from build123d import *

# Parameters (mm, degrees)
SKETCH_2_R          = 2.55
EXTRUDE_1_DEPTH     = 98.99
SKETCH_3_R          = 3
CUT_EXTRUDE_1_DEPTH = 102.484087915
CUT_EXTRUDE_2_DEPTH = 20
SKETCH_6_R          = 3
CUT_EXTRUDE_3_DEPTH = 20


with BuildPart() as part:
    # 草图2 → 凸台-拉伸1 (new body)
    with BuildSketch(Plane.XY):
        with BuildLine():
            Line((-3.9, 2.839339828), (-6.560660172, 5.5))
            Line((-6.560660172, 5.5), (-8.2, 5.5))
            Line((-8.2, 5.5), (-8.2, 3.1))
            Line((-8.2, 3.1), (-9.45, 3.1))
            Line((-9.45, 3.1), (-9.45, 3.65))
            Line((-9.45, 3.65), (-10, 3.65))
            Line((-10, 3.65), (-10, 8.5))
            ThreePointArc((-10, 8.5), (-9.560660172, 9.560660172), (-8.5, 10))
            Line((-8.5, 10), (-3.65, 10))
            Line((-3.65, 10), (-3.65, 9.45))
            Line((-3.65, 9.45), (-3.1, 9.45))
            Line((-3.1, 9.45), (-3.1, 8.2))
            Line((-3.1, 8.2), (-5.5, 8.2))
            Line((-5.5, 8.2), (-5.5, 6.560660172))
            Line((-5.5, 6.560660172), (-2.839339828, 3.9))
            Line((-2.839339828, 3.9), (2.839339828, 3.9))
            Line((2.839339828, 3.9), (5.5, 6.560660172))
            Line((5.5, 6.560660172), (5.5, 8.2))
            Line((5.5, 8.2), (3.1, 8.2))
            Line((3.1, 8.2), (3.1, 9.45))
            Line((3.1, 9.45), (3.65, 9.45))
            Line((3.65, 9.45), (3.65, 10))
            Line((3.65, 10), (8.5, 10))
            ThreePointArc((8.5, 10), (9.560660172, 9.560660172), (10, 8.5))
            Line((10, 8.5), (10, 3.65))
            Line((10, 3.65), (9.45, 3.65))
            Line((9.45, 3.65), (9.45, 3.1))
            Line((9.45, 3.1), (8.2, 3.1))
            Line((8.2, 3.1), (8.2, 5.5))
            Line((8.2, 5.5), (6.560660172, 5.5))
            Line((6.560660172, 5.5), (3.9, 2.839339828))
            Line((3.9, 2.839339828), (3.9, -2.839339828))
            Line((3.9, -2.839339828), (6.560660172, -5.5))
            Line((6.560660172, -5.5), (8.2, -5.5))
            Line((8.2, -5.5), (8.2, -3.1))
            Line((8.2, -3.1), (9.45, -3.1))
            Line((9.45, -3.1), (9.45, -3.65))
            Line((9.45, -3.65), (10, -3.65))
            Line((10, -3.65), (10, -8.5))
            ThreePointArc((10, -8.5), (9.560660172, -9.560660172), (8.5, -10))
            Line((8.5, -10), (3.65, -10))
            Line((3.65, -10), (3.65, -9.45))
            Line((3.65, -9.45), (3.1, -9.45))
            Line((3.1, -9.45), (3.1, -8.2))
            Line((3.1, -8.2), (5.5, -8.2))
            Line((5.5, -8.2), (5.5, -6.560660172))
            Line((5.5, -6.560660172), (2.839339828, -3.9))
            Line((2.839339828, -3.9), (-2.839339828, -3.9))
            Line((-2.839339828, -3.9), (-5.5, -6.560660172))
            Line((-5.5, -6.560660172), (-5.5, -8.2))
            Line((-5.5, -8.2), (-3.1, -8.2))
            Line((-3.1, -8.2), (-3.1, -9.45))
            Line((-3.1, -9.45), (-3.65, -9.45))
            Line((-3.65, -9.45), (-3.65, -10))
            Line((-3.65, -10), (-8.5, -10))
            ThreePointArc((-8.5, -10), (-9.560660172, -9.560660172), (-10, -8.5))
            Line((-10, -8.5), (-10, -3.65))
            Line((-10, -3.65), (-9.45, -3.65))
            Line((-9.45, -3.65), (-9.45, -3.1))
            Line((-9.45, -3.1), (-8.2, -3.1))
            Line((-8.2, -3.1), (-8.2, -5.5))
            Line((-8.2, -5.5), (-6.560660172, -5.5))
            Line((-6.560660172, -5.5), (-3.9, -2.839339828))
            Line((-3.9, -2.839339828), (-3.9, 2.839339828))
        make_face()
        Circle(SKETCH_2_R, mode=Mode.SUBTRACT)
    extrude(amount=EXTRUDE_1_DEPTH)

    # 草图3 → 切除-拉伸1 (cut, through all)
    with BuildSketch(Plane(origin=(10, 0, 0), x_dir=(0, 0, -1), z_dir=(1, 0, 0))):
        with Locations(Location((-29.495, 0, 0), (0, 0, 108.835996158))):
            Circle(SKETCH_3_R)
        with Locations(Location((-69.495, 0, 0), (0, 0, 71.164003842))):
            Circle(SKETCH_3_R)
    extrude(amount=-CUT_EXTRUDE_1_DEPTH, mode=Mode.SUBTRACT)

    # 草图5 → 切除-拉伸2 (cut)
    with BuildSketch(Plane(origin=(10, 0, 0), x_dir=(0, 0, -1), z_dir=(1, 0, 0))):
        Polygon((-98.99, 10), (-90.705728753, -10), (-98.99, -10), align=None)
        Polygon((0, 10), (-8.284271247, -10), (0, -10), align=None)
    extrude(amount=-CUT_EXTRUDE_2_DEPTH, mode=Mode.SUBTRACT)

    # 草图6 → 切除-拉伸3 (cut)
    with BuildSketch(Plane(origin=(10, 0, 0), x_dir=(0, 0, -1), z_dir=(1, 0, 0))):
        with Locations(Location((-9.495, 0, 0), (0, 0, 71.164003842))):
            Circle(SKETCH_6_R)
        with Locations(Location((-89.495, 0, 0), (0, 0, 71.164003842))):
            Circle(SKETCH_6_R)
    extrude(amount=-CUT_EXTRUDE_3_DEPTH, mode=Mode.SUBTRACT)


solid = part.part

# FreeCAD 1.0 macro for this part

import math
import FreeCAD as App
import Part
import Sketcher
from FreeCAD import Vector
Q = App.Units.Quantity

doc = App.newDocument("Part")
params = doc.addObject("Spreadsheet::Sheet", "Params")
for row, (alias, value) in enumerate([
    ("sketch1_diameter", "5.1 mm"),
    ("sketch1_radius", "1.5 mm"),
    ("sketch1_width", "2.4 mm"),
    ("sketch1_width2", "1.25 mm"),
    ("sketch1_width3", "0.55 mm"),
    ("pad1_length", "98.99 mm"),
    ("sketch2_diameter", "6 mm"),
    ("sketch3_width", "20 mm"),
    ("pocket2_length", "20 mm"),
    ("sketch4_diameter", "6 mm"),
    ("pocket3_length", "20 mm"),
], start=1):
    params.set(f"A{row}", alias)
    params.set(f"B{row}", "=" + value)
    params.setAlias(f"B{row}", alias)

body = doc.addObject("PartDesign::Body", "Body")

sketch1 = body.newObject("Sketcher::SketchObject", "Sketch")
sketch1.AttachmentSupport = (doc.getObject("XY_Plane"), [""])
sketch1.MapMode = "FlatFace"
sketch1.addGeometry(Part.LineSegment(Vector(-6.6, 5.5, 0), Vector(-3.9, 2.8, 0)), False)
sketch1.addGeometry(Part.LineSegment(Vector(-3.9, 2.8, 0), Vector(-3.9, -2.8, 0)), False)
sketch1.addGeometry(Part.LineSegment(Vector(-3.9, -2.8, 0), Vector(-6.6, -5.5, 0)), False)
sketch1.addGeometry(Part.LineSegment(Vector(-6.6, -5.5, 0), Vector(-8.2, -5.5, 0)), False)
sketch1.addGeometry(Part.LineSegment(Vector(-8.2, -5.5, 0), Vector(-8.2, -3.1, 0)), False)
sketch1.addGeometry(Part.LineSegment(Vector(-8.2, -3.1, 0), Vector(-9.4, -3.1, 0)), False)
sketch1.addGeometry(Part.LineSegment(Vector(-9.4, -3.1, 0), Vector(-9.4, -3.6, 0)), False)
sketch1.addGeometry(Part.LineSegment(Vector(-9.4, -3.6, 0), Vector(-10, -3.6, 0)), False)
sketch1.addGeometry(Part.LineSegment(Vector(-10, -3.6, 0), Vector(-10, -8.5, 0)), False)
sketch1.addGeometry(Part.ArcOfCircle(Part.Circle(Vector(-8.5, -8.5, 0), Vector(0, 0, 1), 1.5), math.radians(180), math.radians(270)), False)
sketch1.addGeometry(Part.LineSegment(Vector(-8.5, -10, 0), Vector(-3.6, -10, 0)), False)
sketch1.addGeometry(Part.LineSegment(Vector(-3.6, -10, 0), Vector(-3.6, -9.4, 0)), False)
sketch1.addGeometry(Part.LineSegment(Vector(-3.6, -9.4, 0), Vector(-3.1, -9.4, 0)), False)
sketch1.addGeometry(Part.LineSegment(Vector(-3.1, -9.4, 0), Vector(-3.1, -8.2, 0)), False)
sketch1.addGeometry(Part.LineSegment(Vector(-3.1, -8.2, 0), Vector(-5.5, -8.2, 0)), False)
sketch1.addGeometry(Part.LineSegment(Vector(-5.5, -8.2, 0), Vector(-5.5, -6.6, 0)), False)
sketch1.addGeometry(Part.LineSegment(Vector(-5.5, -6.6, 0), Vector(-2.8, -3.9, 0)), False)
sketch1.addGeometry(Part.LineSegment(Vector(-2.8, -3.9, 0), Vector(2.8, -3.9, 0)), False)
sketch1.addGeometry(Part.LineSegment(Vector(2.8, -3.9, 0), Vector(5.5, -6.6, 0)), False)
sketch1.addGeometry(Part.LineSegment(Vector(5.5, -6.6, 0), Vector(5.5, -8.2, 0)), False)
sketch1.addGeometry(Part.LineSegment(Vector(5.5, -8.2, 0), Vector(3.1, -8.2, 0)), False)
sketch1.addGeometry(Part.LineSegment(Vector(3.1, -8.2, 0), Vector(3.1, -9.4, 0)), False)
sketch1.addGeometry(Part.LineSegment(Vector(3.1, -9.4, 0), Vector(3.6, -9.4, 0)), False)
sketch1.addGeometry(Part.LineSegment(Vector(3.6, -9.4, 0), Vector(3.6, -10, 0)), False)
sketch1.addGeometry(Part.LineSegment(Vector(3.6, -10, 0), Vector(8.5, -10, 0)), False)
sketch1.addGeometry(Part.ArcOfCircle(Part.Circle(Vector(8.5, -8.5, 0), Vector(0, 0, 1), 1.5), math.radians(-90), math.radians(0)), False)
sketch1.addGeometry(Part.LineSegment(Vector(10, -8.5, 0), Vector(10, -3.6, 0)), False)
sketch1.addGeometry(Part.LineSegment(Vector(10, -3.6, 0), Vector(9.4, -3.6, 0)), False)
sketch1.addGeometry(Part.LineSegment(Vector(9.4, -3.6, 0), Vector(9.4, -3.1, 0)), False)
sketch1.addGeometry(Part.LineSegment(Vector(9.4, -3.1, 0), Vector(8.2, -3.1, 0)), False)
sketch1.addGeometry(Part.LineSegment(Vector(8.2, -3.1, 0), Vector(8.2, -5.5, 0)), False)
sketch1.addGeometry(Part.LineSegment(Vector(8.2, -5.5, 0), Vector(6.6, -5.5, 0)), False)
sketch1.addGeometry(Part.LineSegment(Vector(6.6, -5.5, 0), Vector(3.9, -2.8, 0)), False)
sketch1.addGeometry(Part.LineSegment(Vector(3.9, -2.8, 0), Vector(3.9, 2.8, 0)), False)
sketch1.addGeometry(Part.LineSegment(Vector(3.9, 2.8, 0), Vector(6.6, 5.5, 0)), False)
sketch1.addGeometry(Part.LineSegment(Vector(6.6, 5.5, 0), Vector(8.2, 5.5, 0)), False)
sketch1.addGeometry(Part.LineSegment(Vector(8.2, 5.5, 0), Vector(8.2, 3.1, 0)), False)
sketch1.addGeometry(Part.LineSegment(Vector(8.2, 3.1, 0), Vector(9.4, 3.1, 0)), False)
sketch1.addGeometry(Part.LineSegment(Vector(9.4, 3.1, 0), Vector(9.4, 3.6, 0)), False)
sketch1.addGeometry(Part.LineSegment(Vector(9.4, 3.6, 0), Vector(10, 3.6, 0)), False)
sketch1.addGeometry(Part.LineSegment(Vector(10, 3.6, 0), Vector(10, 8.5, 0)), False)
sketch1.addGeometry(Part.ArcOfCircle(Part.Circle(Vector(8.5, 8.5, 0), Vector(0, 0, 1), 1.5), math.radians(0), math.radians(90)), False)
sketch1.addGeometry(Part.LineSegment(Vector(8.5, 10, 0), Vector(3.6, 10, 0)), False)
sketch1.addGeometry(Part.LineSegment(Vector(3.6, 10, 0), Vector(3.6, 9.4, 0)), False)
sketch1.addGeometry(Part.LineSegment(Vector(3.6, 9.4, 0), Vector(3.1, 9.4, 0)), False)
sketch1.addGeometry(Part.LineSegment(Vector(3.1, 9.4, 0), Vector(3.1, 8.2, 0)), False)
sketch1.addGeometry(Part.LineSegment(Vector(3.1, 8.2, 0), Vector(5.5, 8.2, 0)), False)
sketch1.addGeometry(Part.LineSegment(Vector(5.5, 8.2, 0), Vector(5.5, 6.6, 0)), False)
sketch1.addGeometry(Part.LineSegment(Vector(5.5, 6.6, 0), Vector(2.8, 3.9, 0)), False)
sketch1.addGeometry(Part.LineSegment(Vector(2.8, 3.9, 0), Vector(-2.8, 3.9, 0)), False)
sketch1.addGeometry(Part.LineSegment(Vector(-2.8, 3.9, 0), Vector(-5.5, 6.6, 0)), False)
sketch1.addGeometry(Part.LineSegment(Vector(-5.5, 6.6, 0), Vector(-5.5, 8.2, 0)), False)
sketch1.addGeometry(Part.LineSegment(Vector(-5.5, 8.2, 0), Vector(-3.1, 8.2, 0)), False)
sketch1.addGeometry(Part.LineSegment(Vector(-3.1, 8.2, 0), Vector(-3.1, 9.4, 0)), False)
sketch1.addGeometry(Part.LineSegment(Vector(-3.1, 9.4, 0), Vector(-3.6, 9.4, 0)), False)
sketch1.addGeometry(Part.LineSegment(Vector(-3.6, 9.4, 0), Vector(-3.6, 10, 0)), False)
sketch1.addGeometry(Part.LineSegment(Vector(-3.6, 10, 0), Vector(-8.5, 10, 0)), False)
sketch1.addGeometry(Part.ArcOfCircle(Part.Circle(Vector(-8.5, 8.5, 0), Vector(0, 0, 1), 1.5), math.radians(90), math.radians(180)), False)
sketch1.addGeometry(Part.LineSegment(Vector(-10, 8.5, 0), Vector(-10, 3.6, 0)), False)
sketch1.addGeometry(Part.LineSegment(Vector(-10, 3.6, 0), Vector(-9.4, 3.6, 0)), False)
sketch1.addGeometry(Part.LineSegment(Vector(-9.4, 3.6, 0), Vector(-9.4, 3.1, 0)), False)
sketch1.addGeometry(Part.LineSegment(Vector(-9.4, 3.1, 0), Vector(-8.2, 3.1, 0)), False)
sketch1.addGeometry(Part.LineSegment(Vector(-8.2, 3.1, 0), Vector(-8.2, 5.5, 0)), False)
sketch1.addGeometry(Part.LineSegment(Vector(-8.2, 5.5, 0), Vector(-6.6, 5.5, 0)), False)
sketch1.addGeometry(Part.Circle(Vector(0, 0, 0), Vector(0, 0, 1), 2.5), False)
sketch1.addConstraint(Sketcher.Constraint("Coincident", 0, 2, 1, 1))
sketch1.addConstraint(Sketcher.Constraint("Coincident", 1, 2, 2, 1))
sketch1.addConstraint(Sketcher.Constraint("Coincident", 2, 2, 3, 1))
sketch1.addConstraint(Sketcher.Constraint("Coincident", 3, 2, 4, 1))
sketch1.addConstraint(Sketcher.Constraint("Coincident", 4, 2, 5, 1))
sketch1.addConstraint(Sketcher.Constraint("Coincident", 5, 2, 6, 1))
sketch1.addConstraint(Sketcher.Constraint("Coincident", 6, 2, 7, 1))
sketch1.addConstraint(Sketcher.Constraint("Coincident", 7, 2, 8, 1))
sketch1.addConstraint(Sketcher.Constraint("Tangent", 8, 2, 9, 1))
sketch1.addConstraint(Sketcher.Constraint("Tangent", 9, 2, 10, 1))
sketch1.addConstraint(Sketcher.Constraint("Coincident", 10, 2, 11, 1))
sketch1.addConstraint(Sketcher.Constraint("Coincident", 11, 2, 12, 1))
sketch1.addConstraint(Sketcher.Constraint("Coincident", 12, 2, 13, 1))
sketch1.addConstraint(Sketcher.Constraint("Coincident", 13, 2, 14, 1))
sketch1.addConstraint(Sketcher.Constraint("Coincident", 14, 2, 15, 1))
sketch1.addConstraint(Sketcher.Constraint("Coincident", 15, 2, 16, 1))
sketch1.addConstraint(Sketcher.Constraint("Coincident", 16, 2, 17, 1))
sketch1.addConstraint(Sketcher.Constraint("Coincident", 17, 2, 18, 1))
sketch1.addConstraint(Sketcher.Constraint("Coincident", 18, 2, 19, 1))
sketch1.addConstraint(Sketcher.Constraint("Coincident", 19, 2, 20, 1))
sketch1.addConstraint(Sketcher.Constraint("Coincident", 20, 2, 21, 1))
sketch1.addConstraint(Sketcher.Constraint("Coincident", 21, 2, 22, 1))
sketch1.addConstraint(Sketcher.Constraint("Coincident", 22, 2, 23, 1))
sketch1.addConstraint(Sketcher.Constraint("Coincident", 23, 2, 24, 1))
sketch1.addConstraint(Sketcher.Constraint("Tangent", 24, 2, 25, 1))
sketch1.addConstraint(Sketcher.Constraint("Tangent", 25, 2, 26, 1))
sketch1.addConstraint(Sketcher.Constraint("Coincident", 26, 2, 27, 1))
sketch1.addConstraint(Sketcher.Constraint("Coincident", 27, 2, 28, 1))
sketch1.addConstraint(Sketcher.Constraint("Coincident", 28, 2, 29, 1))
sketch1.addConstraint(Sketcher.Constraint("Coincident", 29, 2, 30, 1))
sketch1.addConstraint(Sketcher.Constraint("Coincident", 30, 2, 31, 1))
sketch1.addConstraint(Sketcher.Constraint("Coincident", 31, 2, 32, 1))
sketch1.addConstraint(Sketcher.Constraint("Coincident", 32, 2, 33, 1))
sketch1.addConstraint(Sketcher.Constraint("Coincident", 33, 2, 34, 1))
sketch1.addConstraint(Sketcher.Constraint("Coincident", 34, 2, 35, 1))
sketch1.addConstraint(Sketcher.Constraint("Coincident", 35, 2, 36, 1))
sketch1.addConstraint(Sketcher.Constraint("Coincident", 36, 2, 37, 1))
sketch1.addConstraint(Sketcher.Constraint("Coincident", 37, 2, 38, 1))
sketch1.addConstraint(Sketcher.Constraint("Coincident", 38, 2, 39, 1))
sketch1.addConstraint(Sketcher.Constraint("Coincident", 39, 2, 40, 1))
sketch1.addConstraint(Sketcher.Constraint("Tangent", 40, 2, 41, 1))
sketch1.addConstraint(Sketcher.Constraint("Tangent", 41, 2, 42, 1))
sketch1.addConstraint(Sketcher.Constraint("Coincident", 42, 2, 43, 1))
sketch1.addConstraint(Sketcher.Constraint("Coincident", 43, 2, 44, 1))
sketch1.addConstraint(Sketcher.Constraint("Coincident", 44, 2, 45, 1))
sketch1.addConstraint(Sketcher.Constraint("Coincident", 45, 2, 46, 1))
sketch1.addConstraint(Sketcher.Constraint("Coincident", 46, 2, 47, 1))
sketch1.addConstraint(Sketcher.Constraint("Coincident", 47, 2, 48, 1))
sketch1.addConstraint(Sketcher.Constraint("Coincident", 48, 2, 49, 1))
sketch1.addConstraint(Sketcher.Constraint("Coincident", 49, 2, 50, 1))
sketch1.addConstraint(Sketcher.Constraint("Coincident", 50, 2, 51, 1))
sketch1.addConstraint(Sketcher.Constraint("Coincident", 51, 2, 52, 1))
sketch1.addConstraint(Sketcher.Constraint("Coincident", 52, 2, 53, 1))
sketch1.addConstraint(Sketcher.Constraint("Coincident", 53, 2, 54, 1))
sketch1.addConstraint(Sketcher.Constraint("Coincident", 54, 2, 55, 1))
sketch1.addConstraint(Sketcher.Constraint("Coincident", 55, 2, 56, 1))
sketch1.addConstraint(Sketcher.Constraint("Tangent", 56, 2, 57, 1))
sketch1.addConstraint(Sketcher.Constraint("Tangent", 57, 2, 58, 1))
sketch1.addConstraint(Sketcher.Constraint("Coincident", 58, 2, 59, 1))
sketch1.addConstraint(Sketcher.Constraint("Coincident", 59, 2, 60, 1))
sketch1.addConstraint(Sketcher.Constraint("Coincident", 60, 2, 61, 1))
sketch1.addConstraint(Sketcher.Constraint("Coincident", 61, 2, 62, 1))
sketch1.addConstraint(Sketcher.Constraint("Coincident", 62, 2, 63, 1))
sketch1.addConstraint(Sketcher.Constraint("Coincident", 63, 2, 0, 1))
sketch1.addConstraint(Sketcher.Constraint("Vertical", 1))
sketch1.addConstraint(Sketcher.Constraint("Horizontal", 3))
sketch1.addConstraint(Sketcher.Constraint("Vertical", 4))
sketch1.addConstraint(Sketcher.Constraint("Horizontal", 5))
sketch1.addConstraint(Sketcher.Constraint("Vertical", 6))
sketch1.addConstraint(Sketcher.Constraint("Horizontal", 7))
sketch1.addConstraint(Sketcher.Constraint("Vertical", 8))
sketch1.addConstraint(Sketcher.Constraint("Horizontal", 10))
sketch1.addConstraint(Sketcher.Constraint("Vertical", 11))
sketch1.addConstraint(Sketcher.Constraint("Horizontal", 12))
sketch1.addConstraint(Sketcher.Constraint("Vertical", 13))
sketch1.addConstraint(Sketcher.Constraint("Horizontal", 14))
sketch1.addConstraint(Sketcher.Constraint("Vertical", 15))
sketch1.addConstraint(Sketcher.Constraint("Horizontal", 17))
sketch1.addConstraint(Sketcher.Constraint("Vertical", 19))
sketch1.addConstraint(Sketcher.Constraint("Horizontal", 20))
sketch1.addConstraint(Sketcher.Constraint("Vertical", 21))
sketch1.addConstraint(Sketcher.Constraint("Horizontal", 22))
sketch1.addConstraint(Sketcher.Constraint("Vertical", 23))
sketch1.addConstraint(Sketcher.Constraint("Horizontal", 24))
sketch1.addConstraint(Sketcher.Constraint("Vertical", 26))
sketch1.addConstraint(Sketcher.Constraint("Horizontal", 27))
sketch1.addConstraint(Sketcher.Constraint("Vertical", 28))
sketch1.addConstraint(Sketcher.Constraint("Horizontal", 29))
sketch1.addConstraint(Sketcher.Constraint("Vertical", 30))
sketch1.addConstraint(Sketcher.Constraint("Horizontal", 31))
sketch1.addConstraint(Sketcher.Constraint("Vertical", 33))
sketch1.addConstraint(Sketcher.Constraint("Horizontal", 35))
sketch1.addConstraint(Sketcher.Constraint("Vertical", 36))
sketch1.addConstraint(Sketcher.Constraint("Horizontal", 37))
sketch1.addConstraint(Sketcher.Constraint("Vertical", 38))
sketch1.addConstraint(Sketcher.Constraint("Horizontal", 39))
sketch1.addConstraint(Sketcher.Constraint("Vertical", 40))
sketch1.addConstraint(Sketcher.Constraint("Horizontal", 42))
sketch1.addConstraint(Sketcher.Constraint("Vertical", 43))
sketch1.addConstraint(Sketcher.Constraint("Horizontal", 44))
sketch1.addConstraint(Sketcher.Constraint("Vertical", 45))
sketch1.addConstraint(Sketcher.Constraint("Horizontal", 46))
sketch1.addConstraint(Sketcher.Constraint("Vertical", 47))
sketch1.addConstraint(Sketcher.Constraint("Horizontal", 49))
sketch1.addConstraint(Sketcher.Constraint("Vertical", 51))
sketch1.addConstraint(Sketcher.Constraint("Horizontal", 52))
sketch1.addConstraint(Sketcher.Constraint("Vertical", 53))
sketch1.addConstraint(Sketcher.Constraint("Horizontal", 54))
sketch1.addConstraint(Sketcher.Constraint("Vertical", 55))
sketch1.addConstraint(Sketcher.Constraint("Horizontal", 56))
sketch1.addConstraint(Sketcher.Constraint("Vertical", 58))
sketch1.addConstraint(Sketcher.Constraint("Horizontal", 59))
sketch1.addConstraint(Sketcher.Constraint("Vertical", 60))
sketch1.addConstraint(Sketcher.Constraint("Horizontal", 61))
sketch1.addConstraint(Sketcher.Constraint("Vertical", 62))
sketch1.addConstraint(Sketcher.Constraint("Horizontal", 63))
sketch1.addConstraint(Sketcher.Constraint("Coincident", 64, 3, -1, 1))
sketch1.addConstraint(Sketcher.Constraint("Equal", 9, 25))
sketch1.addConstraint(Sketcher.Constraint("Equal", 25, 41))
sketch1.addConstraint(Sketcher.Constraint("Equal", 41, 57))
sketch1.addConstraint(Sketcher.Constraint("Symmetric", 9, 3, 41, 3, -1, 1))
sketch1.addConstraint(Sketcher.Constraint("Symmetric", 25, 3, 57, 3, -1, 1))
sketch1.addConstraint(Sketcher.Constraint("Symmetric", 0, 2, 32, 2, -1, 1))
sketch1.addConstraint(Sketcher.Constraint("Symmetric", 2, 2, 34, 2, -1, 1))
sketch1.addConstraint(Sketcher.Constraint("Symmetric", 4, 2, 36, 2, -1, 1))
sketch1.addConstraint(Sketcher.Constraint("Symmetric", 6, 2, 38, 2, -1, 1))
sketch1.addConstraint(Sketcher.Constraint("Symmetric", 11, 2, 43, 2, -1, 1))
sketch1.addConstraint(Sketcher.Constraint("Symmetric", 13, 2, 45, 2, -1, 1))
sketch1.addConstraint(Sketcher.Constraint("Symmetric", 15, 2, 47, 2, -1, 1))
sketch1.addConstraint(Sketcher.Constraint("Symmetric", 16, 2, 48, 2, -1, 1))
sketch1.addConstraint(Sketcher.Constraint("Symmetric", 18, 2, 50, 2, -1, 1))
sketch1.addConstraint(Sketcher.Constraint("Symmetric", 20, 2, 52, 2, -1, 1))
sketch1.addConstraint(Sketcher.Constraint("Symmetric", 22, 2, 54, 2, -1, 1))
sketch1.addConstraint(Sketcher.Constraint("Symmetric", 27, 2, 59, 2, -1, 1))
sketch1.addConstraint(Sketcher.Constraint("Symmetric", 29, 2, 61, 2, -1, 1))
sketch1.addConstraint(Sketcher.Constraint("Symmetric", 31, 2, 63, 2, -1, 1))
sketch1.addConstraint(Sketcher.Constraint("Symmetric", 9, 3, 25, 3, -2))
sketch1.addConstraint(Sketcher.Constraint("Symmetric", 15, 2, 18, 2, -2))
sketch1.addConstraint(Sketcher.Constraint("Symmetric", 13, 2, 20, 2, -2))
sketch1.addConstraint(Sketcher.Constraint("Symmetric", 11, 2, 22, 2, -2))
sketch1.addConstraint(Sketcher.Constraint("Symmetric", 6, 2, 27, 2, -2))
sketch1.addConstraint(Sketcher.Constraint("Symmetric", 4, 2, 29, 2, -2))
sketch1.addConstraint(Sketcher.Constraint("Symmetric", 2, 2, 31, 2, -2))
sketch1.addConstraint(Sketcher.Constraint("Perpendicular", 0, 2))
sketch1.addConstraint(Sketcher.Constraint("Parallel", 2, 16))
sketch1.addConstraint(Sketcher.Constraint("Perpendicular", 16, 18))
sketch1.addConstraint(Sketcher.Constraint("Perpendicular", 32, 34))
sketch1.addConstraint(Sketcher.Constraint("Perpendicular", 48, 50))
sketch1.addConstraint(Sketcher.Constraint("Horizontal", 1, 2, 32, 2))
sketch1.addConstraint(Sketcher.Constraint("Equal", 7, 12))
sketch1.addConstraint(Sketcher.Constraint("Equal", 49, 1))
sketch1.addConstraint(Sketcher.Constraint("Equal", 52, 4))
sketch1.addConstraint(Sketcher.Constraint("Equal", 59, 6))
sketch1.addConstraint(Sketcher.Constraint("Equal", 56, 8))
sketch1.addConstraint(Sketcher.Constraint("Equal", 6, 11))
sketch1.addConstraint(Sketcher.Constraint("Equal", 61, 13))
sketch1.addConstraint(Sketcher.Constraint("Equal", 63, 15))
sketch1.addConstraint(Sketcher.Constraint("Equal", 2, 16))
sketch1.addConstraint(Sketcher.Constraint("Diameter", 64, 5.1))
sketch1.addConstraint(Sketcher.Constraint("Radius", 9, 1.5))
sketch1.addConstraint(Sketcher.Constraint("DistanceX", 14, 2, 14, 1, 2.4))
sketch1.addConstraint(Sketcher.Constraint("DistanceX", 7, 2, -1, 1, 10.0))
sketch1.addConstraint(Sketcher.Constraint("DistanceX", 5, 2, 5, 1, 1.25))
sketch1.addConstraint(Sketcher.Constraint("DistanceX", 7, 2, 7, 1, 0.55))
sketch1.addConstraint(Sketcher.Constraint("DistanceX", 10, 1, 10, 2, 4.85))
sketch1.addConstraint(Sketcher.Constraint("DistanceX", 0, 2, -1, 1, 3.9))
sketch1.addConstraint(Sketcher.Constraint("DistanceX", 3, 2, 3, 1, 1.63934))
sketch1.setExpression("Constraints[158]", "Params.sketch1_diameter")
sketch1.setExpression("Constraints[159]", "Params.sketch1_radius")
sketch1.setExpression("Constraints[160]", "Params.sketch1_width")
sketch1.setExpression("Constraints[162]", "Params.sketch1_width2")
sketch1.setExpression("Constraints[163]", "Params.sketch1_width3")
pad1 = body.newObject("PartDesign::Pad", "Pad")
pad1.Profile = sketch1
pad1.setExpression("Length", "Params.pad1_length")

sketch2 = body.newObject("Sketcher::SketchObject", "Sketch001")
sketch2.AttachmentSupport = (doc.getObject("YZ_Plane"), [""])
sketch2.MapMode = "FlatFace"
sketch2.AttachmentOffset = App.Placement(Vector(0, 0, 10), App.Rotation())
sketch2.addGeometry(Part.Circle(Vector(0, 29.5, 0), Vector(0, 0, 1), 3), False)
sketch2.addGeometry(Part.Circle(Vector(0, 69.5, 0), Vector(0, 0, 1), 3), False)
sketch2.addConstraint(Sketcher.Constraint("Equal", 0, 1))
sketch2.addConstraint(Sketcher.Constraint("PointOnObject", 0, 3, -2))
sketch2.addConstraint(Sketcher.Constraint("PointOnObject", 1, 3, -2))
sketch2.addConstraint(Sketcher.Constraint("Diameter", 0, 6.0))
sketch2.addConstraint(Sketcher.Constraint("DistanceY", 0, 3, 1, 3, 40.0))
sketch2.addConstraint(Sketcher.Constraint("DistanceY", -1, 1, 0, 3, 29.495))
sketch2.setExpression("Constraints[3]", "Params.sketch2_diameter")
pocket1 = body.newObject("PartDesign::Pocket", "Pocket")
pocket1.Profile = sketch2
pocket1.Type = "ThroughAll"

sketch3 = body.newObject("Sketcher::SketchObject", "Sketch002")
sketch3.AttachmentSupport = (doc.getObject("YZ_Plane"), [""])
sketch3.MapMode = "FlatFace"
sketch3.AttachmentOffset = App.Placement(Vector(0, 0, 10), App.Rotation())
sketch3.addGeometry(Part.LineSegment(Vector(-10, 91, 0), Vector(10, 99, 0)), False)
sketch3.addGeometry(Part.LineSegment(Vector(10, 99, 0), Vector(-10, 99, 0)), False)
sketch3.addGeometry(Part.LineSegment(Vector(-10, 99, 0), Vector(-10, 91, 0)), False)
sketch3.addGeometry(Part.LineSegment(Vector(10, 0, 0), Vector(-10, 8, 0)), False)
sketch3.addGeometry(Part.LineSegment(Vector(-10, 8, 0), Vector(-10, 0, 0)), False)
sketch3.addGeometry(Part.LineSegment(Vector(-10, 0, 0), Vector(10, 0, 0)), False)
sketch3.addConstraint(Sketcher.Constraint("Coincident", 0, 2, 1, 1))
sketch3.addConstraint(Sketcher.Constraint("Coincident", 1, 2, 2, 1))
sketch3.addConstraint(Sketcher.Constraint("Coincident", 2, 2, 0, 1))
sketch3.addConstraint(Sketcher.Constraint("Coincident", 3, 2, 4, 1))
sketch3.addConstraint(Sketcher.Constraint("Coincident", 4, 2, 5, 1))
sketch3.addConstraint(Sketcher.Constraint("Coincident", 5, 2, 3, 1))
sketch3.addConstraint(Sketcher.Constraint("Horizontal", 1))
sketch3.addConstraint(Sketcher.Constraint("Vertical", 2))
sketch3.addConstraint(Sketcher.Constraint("Vertical", 4))
sketch3.addConstraint(Sketcher.Constraint("Horizontal", 5))
sketch3.addConstraint(Sketcher.Constraint("Symmetric", 4, 2, 5, 2, -1, 1))
sketch3.addConstraint(Sketcher.Constraint("Vertical", 2, 2, 3, 2))
sketch3.addConstraint(Sketcher.Constraint("Vertical", 0, 2, 5, 2))
sketch3.addConstraint(Sketcher.Constraint("Equal", 2, 4))
sketch3.addConstraint(Sketcher.Constraint("DistanceX", 1, 2, 1, 1, 20.0))
sketch3.addConstraint(Sketcher.Constraint("Angle", 0, Q("22.5 deg")))
sketch3.addConstraint(Sketcher.Constraint("DistanceY", -1, 1, 0, 2, 98.99))
sketch3.setExpression("Constraints[14]", "Params.sketch3_width")
pocket2 = body.newObject("PartDesign::Pocket", "Pocket001")
pocket2.Profile = sketch3
pocket2.setExpression("Length", "Params.pocket2_length")

sketch4 = body.newObject("Sketcher::SketchObject", "Sketch003")
sketch4.AttachmentSupport = (doc.getObject("YZ_Plane"), [""])
sketch4.MapMode = "FlatFace"
sketch4.AttachmentOffset = App.Placement(Vector(0, 0, 10), App.Rotation())
sketch4.addGeometry(Part.Circle(Vector(0, 9.5, 0), Vector(0, 0, 1), 3), False)
sketch4.addGeometry(Part.Circle(Vector(0, 89.5, 0), Vector(0, 0, 1), 3), False)
sketch4.addConstraint(Sketcher.Constraint("Equal", 0, 1))
sketch4.addConstraint(Sketcher.Constraint("PointOnObject", 0, 3, -2))
sketch4.addConstraint(Sketcher.Constraint("PointOnObject", 1, 3, -2))
sketch4.addConstraint(Sketcher.Constraint("Diameter", 0, 6.0))
sketch4.addConstraint(Sketcher.Constraint("DistanceY", 0, 3, 1, 3, 80.0))
sketch4.addConstraint(Sketcher.Constraint("DistanceY", -1, 1, 0, 3, 9.495))
sketch4.setExpression("Constraints[3]", "Params.sketch4_diameter")
pocket3 = body.newObject("PartDesign::Pocket", "Pocket002")
pocket3.Profile = sketch4
pocket3.setExpression("Length", "Params.pocket3_length")

doc.recompute()
